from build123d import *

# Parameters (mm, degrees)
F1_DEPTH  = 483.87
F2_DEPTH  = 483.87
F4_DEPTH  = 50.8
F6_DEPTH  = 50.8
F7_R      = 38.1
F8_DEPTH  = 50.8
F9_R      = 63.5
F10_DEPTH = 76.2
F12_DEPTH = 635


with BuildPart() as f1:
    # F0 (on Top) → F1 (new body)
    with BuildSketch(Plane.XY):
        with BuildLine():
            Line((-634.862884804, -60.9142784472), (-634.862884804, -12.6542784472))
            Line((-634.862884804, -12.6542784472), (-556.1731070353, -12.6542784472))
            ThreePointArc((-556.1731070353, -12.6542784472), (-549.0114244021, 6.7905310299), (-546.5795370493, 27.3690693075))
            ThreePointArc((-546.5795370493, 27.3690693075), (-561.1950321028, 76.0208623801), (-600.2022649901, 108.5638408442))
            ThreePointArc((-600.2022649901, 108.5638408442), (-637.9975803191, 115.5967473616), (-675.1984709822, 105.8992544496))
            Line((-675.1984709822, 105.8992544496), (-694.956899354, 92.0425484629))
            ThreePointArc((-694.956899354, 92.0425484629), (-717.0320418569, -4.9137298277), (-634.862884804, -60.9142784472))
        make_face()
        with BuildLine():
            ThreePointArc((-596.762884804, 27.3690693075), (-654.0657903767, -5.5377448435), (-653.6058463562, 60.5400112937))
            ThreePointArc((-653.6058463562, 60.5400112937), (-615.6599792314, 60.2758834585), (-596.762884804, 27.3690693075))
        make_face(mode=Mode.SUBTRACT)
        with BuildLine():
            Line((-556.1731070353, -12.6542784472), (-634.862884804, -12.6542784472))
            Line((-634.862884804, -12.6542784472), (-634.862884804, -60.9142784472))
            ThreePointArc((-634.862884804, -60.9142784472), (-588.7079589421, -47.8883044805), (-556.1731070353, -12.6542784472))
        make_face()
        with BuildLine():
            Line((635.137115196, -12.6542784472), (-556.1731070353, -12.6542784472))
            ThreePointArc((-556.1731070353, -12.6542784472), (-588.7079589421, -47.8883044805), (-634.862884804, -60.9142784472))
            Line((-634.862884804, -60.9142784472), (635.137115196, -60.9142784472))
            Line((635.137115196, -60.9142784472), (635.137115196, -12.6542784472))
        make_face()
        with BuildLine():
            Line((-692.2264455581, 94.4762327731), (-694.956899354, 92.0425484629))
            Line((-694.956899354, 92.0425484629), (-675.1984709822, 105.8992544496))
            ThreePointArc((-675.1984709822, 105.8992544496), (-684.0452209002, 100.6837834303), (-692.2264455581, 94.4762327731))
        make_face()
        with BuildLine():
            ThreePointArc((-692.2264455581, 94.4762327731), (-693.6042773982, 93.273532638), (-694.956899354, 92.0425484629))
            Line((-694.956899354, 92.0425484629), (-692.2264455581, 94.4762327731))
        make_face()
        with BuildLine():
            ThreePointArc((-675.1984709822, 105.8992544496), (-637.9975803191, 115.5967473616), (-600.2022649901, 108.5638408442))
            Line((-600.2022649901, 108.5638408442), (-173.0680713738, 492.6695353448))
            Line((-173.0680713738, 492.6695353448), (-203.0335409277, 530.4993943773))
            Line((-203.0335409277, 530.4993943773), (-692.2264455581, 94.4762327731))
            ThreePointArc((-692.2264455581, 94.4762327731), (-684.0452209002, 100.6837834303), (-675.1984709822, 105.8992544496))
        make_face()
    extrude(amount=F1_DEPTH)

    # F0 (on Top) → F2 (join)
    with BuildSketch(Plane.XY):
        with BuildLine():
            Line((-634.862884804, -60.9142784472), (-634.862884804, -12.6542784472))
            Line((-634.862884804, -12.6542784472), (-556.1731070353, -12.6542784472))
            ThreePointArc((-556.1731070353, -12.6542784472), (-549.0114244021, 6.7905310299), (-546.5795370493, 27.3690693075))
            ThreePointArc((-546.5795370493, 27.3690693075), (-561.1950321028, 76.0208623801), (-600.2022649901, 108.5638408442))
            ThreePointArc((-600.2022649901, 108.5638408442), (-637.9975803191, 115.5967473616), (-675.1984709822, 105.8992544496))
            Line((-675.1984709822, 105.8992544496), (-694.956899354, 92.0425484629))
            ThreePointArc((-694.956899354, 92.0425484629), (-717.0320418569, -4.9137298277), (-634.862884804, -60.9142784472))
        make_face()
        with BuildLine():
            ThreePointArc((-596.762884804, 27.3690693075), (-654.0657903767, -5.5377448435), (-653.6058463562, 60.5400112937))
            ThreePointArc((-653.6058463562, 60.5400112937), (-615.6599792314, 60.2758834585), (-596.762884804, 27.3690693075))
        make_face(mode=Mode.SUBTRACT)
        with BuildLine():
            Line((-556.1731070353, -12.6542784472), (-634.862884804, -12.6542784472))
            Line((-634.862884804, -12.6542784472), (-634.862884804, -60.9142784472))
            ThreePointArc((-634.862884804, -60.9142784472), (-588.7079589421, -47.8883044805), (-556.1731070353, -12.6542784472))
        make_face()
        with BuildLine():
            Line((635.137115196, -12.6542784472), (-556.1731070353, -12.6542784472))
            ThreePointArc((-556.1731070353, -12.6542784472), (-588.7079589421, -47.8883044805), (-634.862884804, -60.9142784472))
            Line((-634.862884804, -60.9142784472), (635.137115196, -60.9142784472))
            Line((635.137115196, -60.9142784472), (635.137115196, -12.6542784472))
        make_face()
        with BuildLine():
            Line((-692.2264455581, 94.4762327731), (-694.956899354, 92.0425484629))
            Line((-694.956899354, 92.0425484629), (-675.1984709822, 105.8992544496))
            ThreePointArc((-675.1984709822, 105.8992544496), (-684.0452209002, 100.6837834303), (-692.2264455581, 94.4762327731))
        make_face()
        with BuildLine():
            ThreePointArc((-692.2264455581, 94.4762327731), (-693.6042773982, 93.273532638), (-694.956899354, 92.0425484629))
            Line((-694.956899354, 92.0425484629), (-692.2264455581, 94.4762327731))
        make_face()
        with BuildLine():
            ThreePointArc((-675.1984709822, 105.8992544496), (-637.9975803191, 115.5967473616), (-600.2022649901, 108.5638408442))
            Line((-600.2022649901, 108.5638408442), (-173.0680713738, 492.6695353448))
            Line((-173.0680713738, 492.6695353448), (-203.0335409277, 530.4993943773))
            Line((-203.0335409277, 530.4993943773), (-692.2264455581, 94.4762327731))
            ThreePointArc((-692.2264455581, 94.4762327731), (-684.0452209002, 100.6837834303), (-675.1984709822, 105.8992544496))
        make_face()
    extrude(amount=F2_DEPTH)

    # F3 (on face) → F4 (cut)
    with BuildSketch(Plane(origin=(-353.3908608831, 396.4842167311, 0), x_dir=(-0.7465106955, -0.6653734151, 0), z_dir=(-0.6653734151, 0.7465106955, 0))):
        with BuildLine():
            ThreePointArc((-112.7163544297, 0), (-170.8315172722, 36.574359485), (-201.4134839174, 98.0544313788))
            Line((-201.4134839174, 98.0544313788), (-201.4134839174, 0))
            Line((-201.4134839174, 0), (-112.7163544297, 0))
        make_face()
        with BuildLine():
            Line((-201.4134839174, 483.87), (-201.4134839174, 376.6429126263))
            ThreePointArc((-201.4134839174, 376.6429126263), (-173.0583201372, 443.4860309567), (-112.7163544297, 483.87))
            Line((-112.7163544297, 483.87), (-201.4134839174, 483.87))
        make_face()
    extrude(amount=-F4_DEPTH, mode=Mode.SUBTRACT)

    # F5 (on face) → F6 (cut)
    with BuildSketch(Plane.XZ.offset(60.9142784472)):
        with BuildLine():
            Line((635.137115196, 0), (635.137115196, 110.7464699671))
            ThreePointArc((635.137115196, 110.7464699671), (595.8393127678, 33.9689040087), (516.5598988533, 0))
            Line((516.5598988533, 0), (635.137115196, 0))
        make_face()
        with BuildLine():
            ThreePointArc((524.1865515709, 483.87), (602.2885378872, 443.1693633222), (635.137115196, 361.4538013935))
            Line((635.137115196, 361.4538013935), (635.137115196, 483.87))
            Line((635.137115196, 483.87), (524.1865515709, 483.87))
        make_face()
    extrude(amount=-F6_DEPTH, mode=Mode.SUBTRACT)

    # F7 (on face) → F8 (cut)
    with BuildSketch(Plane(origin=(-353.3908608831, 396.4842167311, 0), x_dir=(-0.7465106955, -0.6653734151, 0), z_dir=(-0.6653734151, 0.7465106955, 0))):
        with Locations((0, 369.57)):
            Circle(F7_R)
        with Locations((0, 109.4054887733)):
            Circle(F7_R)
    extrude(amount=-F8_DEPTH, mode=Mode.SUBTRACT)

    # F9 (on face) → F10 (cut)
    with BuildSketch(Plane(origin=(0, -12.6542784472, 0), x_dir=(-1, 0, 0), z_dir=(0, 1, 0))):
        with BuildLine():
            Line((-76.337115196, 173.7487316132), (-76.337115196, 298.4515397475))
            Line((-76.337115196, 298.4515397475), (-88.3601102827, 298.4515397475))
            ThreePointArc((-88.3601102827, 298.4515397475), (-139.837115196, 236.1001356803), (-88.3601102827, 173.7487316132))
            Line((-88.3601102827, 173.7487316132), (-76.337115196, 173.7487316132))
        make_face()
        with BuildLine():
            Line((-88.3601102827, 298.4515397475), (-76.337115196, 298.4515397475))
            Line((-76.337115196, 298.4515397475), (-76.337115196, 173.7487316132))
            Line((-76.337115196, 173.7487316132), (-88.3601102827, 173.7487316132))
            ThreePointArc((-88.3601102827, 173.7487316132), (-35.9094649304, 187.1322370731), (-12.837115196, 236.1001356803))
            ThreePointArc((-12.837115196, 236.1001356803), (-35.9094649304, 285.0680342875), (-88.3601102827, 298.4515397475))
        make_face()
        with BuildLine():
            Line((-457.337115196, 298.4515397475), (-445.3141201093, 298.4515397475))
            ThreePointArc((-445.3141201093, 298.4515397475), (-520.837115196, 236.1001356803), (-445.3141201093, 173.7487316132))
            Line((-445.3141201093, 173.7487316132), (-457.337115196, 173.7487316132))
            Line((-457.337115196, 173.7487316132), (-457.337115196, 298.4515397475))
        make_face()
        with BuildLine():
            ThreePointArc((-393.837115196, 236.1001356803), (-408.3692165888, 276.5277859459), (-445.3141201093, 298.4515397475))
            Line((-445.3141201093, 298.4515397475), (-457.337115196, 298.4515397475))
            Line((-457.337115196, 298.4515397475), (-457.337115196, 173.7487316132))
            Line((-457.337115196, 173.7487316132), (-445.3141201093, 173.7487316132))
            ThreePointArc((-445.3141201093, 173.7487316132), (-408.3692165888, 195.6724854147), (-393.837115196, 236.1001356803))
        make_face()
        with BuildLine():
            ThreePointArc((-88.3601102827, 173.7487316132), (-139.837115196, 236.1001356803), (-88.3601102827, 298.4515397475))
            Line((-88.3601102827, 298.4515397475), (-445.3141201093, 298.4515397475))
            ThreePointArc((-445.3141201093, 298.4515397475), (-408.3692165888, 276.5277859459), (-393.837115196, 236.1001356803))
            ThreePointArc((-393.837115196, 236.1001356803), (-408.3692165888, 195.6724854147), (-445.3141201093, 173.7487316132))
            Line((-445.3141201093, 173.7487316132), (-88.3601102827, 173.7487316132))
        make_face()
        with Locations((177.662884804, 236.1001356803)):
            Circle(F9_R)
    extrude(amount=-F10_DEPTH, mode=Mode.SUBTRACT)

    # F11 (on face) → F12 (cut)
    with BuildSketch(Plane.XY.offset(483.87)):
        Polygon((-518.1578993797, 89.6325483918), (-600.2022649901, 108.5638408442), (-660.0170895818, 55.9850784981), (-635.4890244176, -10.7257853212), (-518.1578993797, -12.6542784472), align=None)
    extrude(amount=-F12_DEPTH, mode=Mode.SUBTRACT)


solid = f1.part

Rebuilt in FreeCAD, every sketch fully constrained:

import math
import FreeCAD as App
import Part
import Sketcher
from FreeCAD import Vector
Q = App.Units.Quantity

doc = App.newDocument("Part")
body = doc.addObject("PartDesign::Body", "Body")

# Sketch on XY plane
sketch1 = doc.addObject("Sketcher::SketchObject", "Sketch")
body.addObject(sketch1)
sketch1.AttachmentSupport = (doc.XY_Plane, [""])
sketch1.MapMode = "FlatFace"
sketch1.addGeometry(Part.ArcOfCircle(Part.Circle(Vector(-634.862885, 27.369069, 0), Vector(0, 0, 1), 88.283348), math.radians(132.89796), math.radians(270)), False)
sketch1.addGeometry(Part.LineSegment(Vector(-634.862885, -60.914278, 0), Vector(635.137115, -60.914278, 0)), False)
sketch1.addGeometry(Part.LineSegment(Vector(635.137115, -60.914278, 0), Vector(635.137115, -12.654278, 0)), False)
sketch1.addGeometry(Part.LineSegment(Vector(635.137115, -12.654278, 0), Vector(-556.173107, -12.654278, 0)), False)
sketch1.addGeometry(Part.ArcOfCircle(Part.Circle(Vector(-634.862885, 27.369069, 0), Vector(0, 0, 1), 88.283348), math.radians(-26.958888), math.radians(0)), False)
sketch1.addGeometry(Part.ArcOfCircle(Part.Circle(Vector(-634.862885, 27.369069, 0), Vector(0, 0, 1), 88.283348), math.radians(0), math.radians(66.883216)), False)
sketch1.addGeometry(Part.LineSegment(Vector(-600.202265, 108.563841, 0), Vector(-173.068071, 492.669535, 0)), False)
sketch1.addGeometry(Part.LineSegment(Vector(-173.068071, 492.669535, 0), Vector(-203.033541, 530.499394, 0)), False)
sketch1.addGeometry(Part.LineSegment(Vector(-203.033541, 530.499394, 0), Vector(-692.226446, 94.476233, 0)), False)
sketch1.addGeometry(Part.ArcOfCircle(Part.Circle(Vector(-634.862885, 27.369069, 0), Vector(0, 0, 1), 88.283348), math.radians(130.523998), math.radians(132.89796)), False)
sketch1.addGeometry(Part.Circle(Vector(-634.862885, 27.369069, 0), Vector(0, 0, 1), 38.1), False)
sketch1.addConstraint(Sketcher.Constraint("Tangent", 0, 2, 1, 1))
sketch1.addConstraint(Sketcher.Constraint("Coincident", 1, 2, 2, 1))
sketch1.addConstraint(Sketcher.Constraint("Coincident", 2, 2, 3, 1))
sketch1.addConstraint(Sketcher.Constraint("Coincident", 3, 2, 4, 1))
sketch1.addConstraint(Sketcher.Constraint("Tangent", 4, 2, 5, 1))
sketch1.addConstraint(Sketcher.Constraint("Coincident", 5, 2, 6, 1))
sketch1.addConstraint(Sketcher.Constraint("Coincident", 6, 2, 7, 1))
sketch1.addConstraint(Sketcher.Constraint("Coincident", 7, 2, 8, 1))
sketch1.addConstraint(Sketcher.Constraint("Coincident", 8, 2, 9, 1))
sketch1.addConstraint(Sketcher.Constraint("Tangent", 9, 2, 0, 1))
sketch1.addConstraint(Sketcher.Constraint("Horizontal", 1))
sketch1.addConstraint(Sketcher.Constraint("Vertical", 2))
sketch1.addConstraint(Sketcher.Constraint("Horizontal", 3))
sketch1.addConstraint(Sketcher.Constraint("Coincident", 4, 3, 0, 3))
sketch1.addConstraint(Sketcher.Constraint("Coincident", 10, 3, 0, 3))
sketch1.addConstraint(Sketcher.Constraint("Equal", 0, 4))
sketch1.addConstraint(Sketcher.Constraint("Equal", 4, 5))
sketch1.addConstraint(Sketcher.Constraint("Equal", 5, 9))
sketch1.addConstraint(Sketcher.Constraint("Horizontal", 10, 3, 4, 2))
sketch1.addConstraint(Sketcher.Constraint("Diameter", 10, Q("3 in")))
sketch1.addConstraint(Sketcher.Constraint("DistanceX", 1, 1, 1, 2, Q("50 in")))
sketch1.addConstraint(Sketcher.Constraint("DistanceY", 2, 1, 2, 2, Q("1.9 in")))
sketch1.addConstraint(Sketcher.Constraint("Distance", 7, Q("1.9 in")))
sketch1.addConstraint(Sketcher.Constraint("DistanceY", 0, 2, -1, 1, Q("2.3981999 in")))
sketch1.addConstraint(Sketcher.Constraint("Radius", 0, Q("88.283348 mm")))
sketch1.addConstraint(Sketcher.Constraint("DistanceY", 0, 3, 9, 2, Q("2.5462 in")))
sketch1.addConstraint(Sketcher.Constraint("DistanceX", 9, 2, -1, 1, Q("694.956899 mm")))
sketch1.addConstraint(Sketcher.Constraint("DistanceY", -1, 1, 5, 2, Q("108.563841 mm")))
sketch1.addConstraint(Sketcher.Constraint("DistanceX", 6, 2, -1, 1, Q("173.068071 mm")))
sketch1.addConstraint(Sketcher.Constraint("DistanceX", 7, 2, -1, 1, Q("203.033541 mm")))
sketch1.addConstraint(Sketcher.Constraint("DistanceX", 8, 2, 0, 3, Q("57.363561 mm")))
sketch1.addConstraint(Sketcher.Constraint("Distance", 6, Q("574.439556 mm")))
pad1 = doc.addObject("PartDesign::Pad", "Pad")
body.addObject(pad1)
pad1.Profile = sketch1
pad1.Length = Q("19.05 in")

# Sketch on XY plane
sketch2 = doc.addObject("Sketcher::SketchObject", "Sketch001")
body.addObject(sketch2)
sketch2.AttachmentSupport = (doc.XY_Plane, [""])
sketch2.MapMode = "FlatFace"
sketch2.addGeometry(Part.ArcOfCircle(Part.Circle(Vector(-634.862885, 27.369069, 0), Vector(0, 0, 1), 88.283348), math.radians(132.89796), math.radians(270)), False)
sketch2.addGeometry(Part.LineSegment(Vector(-634.862885, -60.914278, 0), Vector(635.137115, -60.914278, 0)), False)
sketch2.addGeometry(Part.LineSegment(Vector(635.137115, -60.914278, 0), Vector(635.137115, -12.654278, 0)), False)
sketch2.addGeometry(Part.LineSegment(Vector(635.137115, -12.654278, 0), Vector(-556.173107, -12.654278, 0)), False)
sketch2.addGeometry(Part.ArcOfCircle(Part.Circle(Vector(-634.862885, 27.369069, 0), Vector(0, 0, 1), 88.283348), math.radians(-26.958888), math.radians(0)), False)
sketch2.addGeometry(Part.ArcOfCircle(Part.Circle(Vector(-634.862885, 27.369069, 0), Vector(0, 0, 1), 88.283348), math.radians(0), math.radians(66.883216)), False)
sketch2.addGeometry(Part.LineSegment(Vector(-600.202265, 108.563841, 0), Vector(-173.068071, 492.669535, 0)), False)
sketch2.addGeometry(Part.LineSegment(Vector(-173.068071, 492.669535, 0), Vector(-203.033541, 530.499394, 0)), False)
sketch2.addGeometry(Part.LineSegment(Vector(-203.033541, 530.499394, 0), Vector(-692.226446, 94.476233, 0)), False)
sketch2.addGeometry(Part.ArcOfCircle(Part.Circle(Vector(-634.862885, 27.369069, 0), Vector(0, 0, 1), 88.283348), math.radians(130.523998), math.radians(132.89796)), False)
sketch2.addGeometry(Part.Circle(Vector(-634.862885, 27.369069, 0), Vector(0, 0, 1), 38.1), False)
sketch2.addConstraint(Sketcher.Constraint("Tangent", 0, 2, 1, 1))
sketch2.addConstraint(Sketcher.Constraint("Coincident", 1, 2, 2, 1))
sketch2.addConstraint(Sketcher.Constraint("Coincident", 2, 2, 3, 1))
sketch2.addConstraint(Sketcher.Constraint("Coincident", 3, 2, 4, 1))
sketch2.addConstraint(Sketcher.Constraint("Tangent", 4, 2, 5, 1))
sketch2.addConstraint(Sketcher.Constraint("Coincident", 5, 2, 6, 1))
sketch2.addConstraint(Sketcher.Constraint("Coincident", 6, 2, 7, 1))
sketch2.addConstraint(Sketcher.Constraint("Coincident", 7, 2, 8, 1))
sketch2.addConstraint(Sketcher.Constraint("Coincident", 8, 2, 9, 1))
sketch2.addConstraint(Sketcher.Constraint("Tangent", 9, 2, 0, 1))
sketch2.addConstraint(Sketcher.Constraint("Horizontal", 1))
sketch2.addConstraint(Sketcher.Constraint("Vertical", 2))
sketch2.addConstraint(Sketcher.Constraint("Horizontal", 3))
sketch2.addConstraint(Sketcher.Constraint("Coincident", 4, 3, 0, 3))
sketch2.addConstraint(Sketcher.Constraint("Coincident", 10, 3, 0, 3))
sketch2.addConstraint(Sketcher.Constraint("Equal", 0, 4))
sketch2.addConstraint(Sketcher.Constraint("Equal", 4, 5))
sketch2.addConstraint(Sketcher.Constraint("Equal", 5, 9))
sketch2.addConstraint(Sketcher.Constraint("Horizontal", 10, 3, 4, 2))
sketch2.addConstraint(Sketcher.Constraint("Diameter", 10, Q("3 in")))
sketch2.addConstraint(Sketcher.Constraint("DistanceX", 1, 1, 1, 2, Q("50 in")))
sketch2.addConstraint(Sketcher.Constraint("DistanceY", 2, 1, 2, 2, Q("1.9 in")))
sketch2.addConstraint(Sketcher.Constraint("Distance", 7, Q("1.9 in")))
sketch2.addConstraint(Sketcher.Constraint("DistanceY", 0, 2, -1, 1, Q("2.3981999 in")))
sketch2.addConstraint(Sketcher.Constraint("Radius", 0, Q("88.283348 mm")))
sketch2.addConstraint(Sketcher.Constraint("DistanceY", 0, 3, 9, 2, Q("2.5462 in")))
sketch2.addConstraint(Sketcher.Constraint("DistanceX", 9, 2, -1, 1, Q("694.956899 mm")))
sketch2.addConstraint(Sketcher.Constraint("DistanceY", -1, 1, 5, 2, Q("108.563841 mm")))
sketch2.addConstraint(Sketcher.Constraint("DistanceX", 6, 2, -1, 1, Q("173.068071 mm")))
sketch2.addConstraint(Sketcher.Constraint("DistanceX", 7, 2, -1, 1, Q("203.033541 mm")))
sketch2.addConstraint(Sketcher.Constraint("DistanceX", 8, 2, 0, 3, Q("57.363561 mm")))
sketch2.addConstraint(Sketcher.Constraint("Distance", 6, Q("574.439556 mm")))
pad2 = doc.addObject("PartDesign::Pad", "Pad001")
body.addObject(pad2)
pad2.Profile = sketch2
pad2.Length = Q("19.05 in")

# Sketch on an angled plane
sketch3 = doc.addObject("Sketcher::SketchObject", "Sketch002")
body.addObject(sketch3)
sketch3.Placement = App.Placement(Vector(-353.390861, 396.484217, 0), App.Rotation(Vector(-0.746510695, -0.665373415, 0), Vector(0, 0, 0.999999999), Vector(-0.665373415, 0.746510695, 0), "ZXY"))
sketch3.addGeometry(Part.ArcOfCircle(Part.Circle(Vector(-76.647497, 121.770429, 0), Vector(0, 0, 1), 127), math.radians(-169.237396), math.radians(-106.499486)), False)
sketch3.addGeometry(Part.LineSegment(Vector(-201.413484, 98.054431, 0), Vector(-201.413484, 0, 0)), False)
sketch3.addGeometry(Part.LineSegment(Vector(-201.413484, 0, 0), Vector(-112.716354, 0, 0)), False)
sketch3.addGeometry(Part.LineSegment(Vector(-201.413484, 483.869999, 0), Vector(-201.413484, 376.642912, 0)), False)
sketch3.addGeometry(Part.ArcOfCircle(Part.Circle(Vector(-75.19918, 362.537969, 0), Vector(0, 0, 1), 127), math.radians(107.182174), math.radians(173.62343)), False)
sketch3.addGeometry(Part.LineSegment(Vector(-112.716354, 483.869999, 0), Vector(-201.413484, 483.869999, 0)), False)
sketch3.addConstraint(Sketcher.Constraint("Coincident", 0, 1, 1, 1))
sketch3.addConstraint(Sketcher.Constraint("Coincident", 1, 2, 2, 1))
sketch3.addConstraint(Sketcher.Constraint("Coincident", 2, 2, 0, 2))
sketch3.addConstraint(Sketcher.Constraint("Coincident", 3, 2, 4, 2))
sketch3.addConstraint(Sketcher.Constraint("Coincident", 4, 1, 5, 1))
sketch3.addConstraint(Sketcher.Constraint("Coincident", 5, 2, 3, 1))
sketch3.addConstraint(Sketcher.Constraint("Vertical", 1))
sketch3.addConstraint(Sketcher.Constraint("Horizontal", 2))
sketch3.addConstraint(Sketcher.Constraint("Vertical", 3))
sketch3.addConstraint(Sketcher.Constraint("Horizontal", 5))
sketch3.addConstraint(Sketcher.Constraint("Equal", 0, 4))
sketch3.addConstraint(Sketcher.Constraint("PointOnObject", 1, 2, -1))
sketch3.addConstraint(Sketcher.Constraint("Vertical", 1, 2, 3, 2))
sketch3.addConstraint(Sketcher.Constraint("Vertical", 2, 2, 4, 1))
sketch3.addConstraint(Sketcher.Constraint("Radius", 0, Q("5 in")))
sketch3.addConstraint(Sketcher.Constraint("DistanceY", -1, 1, 4, 1, Q("19.05 in")))
sketch3.addConstraint(Sketcher.Constraint("DistanceX", 2, 1, 2, 2, Q("88.697129 mm")))
sketch3.addConstraint(Sketcher.Constraint("DistanceY", 1, 2, 1, 1, Q("98.054431 mm")))
sketch3.addConstraint(Sketcher.Constraint("DistanceY", 3, 2, 3, 1, Q("107.227087 mm")))
sketch3.addConstraint(Sketcher.Constraint("DistanceX", 4, 3, -1, 1, Q("75.19918 mm")))
pocket1 = doc.addObject("PartDesign::Pocket", "Pocket")
body.addObject(pocket1)
pocket1.Profile = sketch3
pocket1.Length = Q("2 in")

# Sketch on XZ plane
sketch4 = doc.addObject("Sketcher::SketchObject", "Sketch003")
body.addObject(sketch4)
sketch4.AttachmentSupport = (doc.XZ_Plane, [""])
sketch4.MapMode = "FlatFace"
sketch4.AttachmentOffset = App.Placement(Vector(0, 0, 2.3981999 * 25.4), App.Rotation())
sketch4.addGeometry(Part.LineSegment(Vector(635.137115, 0, 0), Vector(635.137115, 110.74647, 0)), False)
sketch4.addGeometry(Part.ArcOfCircle(Part.Circle(Vector(509.153776, 126.783869, 0), Vector(0, 0, 1), 127), math.radians(-86.656847), math.radians(-7.254607)), False)
sketch4.addGeometry(Part.LineSegment(Vector(516.559899, 0, 0), Vector(635.137115, 0, 0)), False)
sketch4.addGeometry(Part.ArcOfCircle(Part.Circle(Vector(508.187358, 357.881803, 0), Vector(0, 0, 1), 127), math.radians(1.611712), math.radians(82.762768)), False)
sketch4.addGeometry(Part.LineSegment(Vector(635.137115, 361.453801, 0), Vector(635.137115, 483.87, 0)), False)
sketch4.addGeometry(Part.LineSegment(Vector(635.137115, 483.87, 0), Vector(524.186552, 483.87, 0)), False)
sketch4.addConstraint(Sketcher.Constraint("Coincident", 0, 2, 1, 2))
sketch4.addConstraint(Sketcher.Constraint("Coincident", 1, 1, 2, 1))
sketch4.addConstraint(Sketcher.Constraint("Coincident", 2, 2, 0, 1))
sketch4.addConstraint(Sketcher.Constraint("Coincident", 3, 1, 4, 1))
sketch4.addConstraint(Sketcher.Constraint("Coincident", 4, 2, 5, 1))
sketch4.addConstraint(Sketcher.Constraint("Coincident", 5, 2, 3, 2))
sketch4.addConstraint(Sketcher.Constraint("Vertical", 0))
sketch4.addConstraint(Sketcher.Constraint("Horizontal", 2))
sketch4.addConstraint(Sketcher.Constraint("Vertical", 4))
sketch4.addConstraint(Sketcher.Constraint("Horizontal", 5))
sketch4.addConstraint(Sketcher.Constraint("Equal", 1, 3))
sketch4.addConstraint(Sketcher.Constraint("PointOnObject", 1, 1, -1))
sketch4.addConstraint(Sketcher.Constraint("Vertical", 2, 2, 3, 1))
sketch4.addConstraint(Sketcher.Constraint("Radius", 1, Q("5 in")))
sketch4.addConstraint(Sketcher.Constraint("DistanceY", -1, 1, 4, 2, Q("19.05 in")))
sketch4.addConstraint(Sketcher.Constraint("DistanceY", 4, 1, 4, 2, Q("122.416199 mm")))
sketch4.addConstraint(Sketcher.Constraint("DistanceY", 0, 1, 0, 2, Q("110.74647 mm")))
sketch4.addConstraint(Sketcher.Constraint("DistanceX", -1, 1, 1, 1, Q("516.559899 mm")))
sketch4.addConstraint(Sketcher.Constraint("DistanceY", 0, 2, 1, 3, Q("16.037399 mm")))
sketch4.addConstraint(Sketcher.Constraint("DistanceX", 5, 2, 5, 1, Q("110.950564 mm")))
pocket2 = doc.addObject("PartDesign::Pocket", "Pocket001")
body.addObject(pocket2)
pocket2.Profile = sketch4
pocket2.Length = Q("2 in")

# Sketch on an angled plane
sketch5 = doc.addObject("Sketcher::SketchObject", "Sketch004")
body.addObject(sketch5)
sketch5.Placement = App.Placement(Vector(-353.390861, 396.484217, 0), App.Rotation(Vector(-0.746510695, -0.665373415, 0), Vector(0, 0, 0.999999999), Vector(-0.665373415, 0.746510695, 0), "ZXY"))
sketch5.addGeometry(Part.Circle(Vector(0, 369.569999, 0), Vector(0, 0, 1), 38.1), False)
sketch5.addGeometry(Part.Circle(Vector(0, 109.405489, 0), Vector(0, 0, 1), 38.1), False)
sketch5.addConstraint(Sketcher.Constraint("Equal", 0, 1))
sketch5.addConstraint(Sketcher.Constraint("PointOnObject", 0, 3, -2))
sketch5.addConstraint(Sketcher.Constraint("PointOnObject", 1, 3, -2))
sketch5.addConstraint(Sketcher.Constraint("Diameter", 0, Q("3 in")))
sketch5.addConstraint(Sketcher.Constraint("DistanceY", -1, 1, 0, 3, Q("14.55 in")))
sketch5.addConstraint(Sketcher.Constraint("DistanceY", -1, 1, 1, 3, Q("109.405489 mm")))
pocket3 = doc.addObject("PartDesign::Pocket", "Pocket002")
body.addObject(pocket3)
pocket3.Profile = sketch5
pocket3.Length = Q("2 in")

# Sketch on XZ plane
sketch6 = doc.addObject("Sketcher::SketchObject", "Sketch005")
body.addObject(sketch6)
sketch6.AttachmentSupport = (doc.XZ_Plane, [""])
sketch6.MapMode = "FlatFace"
sketch6.AttachmentOffset = App.Placement(Vector(0, 0, 0.4981999 * 25.4), App.Rotation())
sketch6.addGeometry(Part.ArcOfCircle(Part.Circle(Vector(76.337115, 236.100136, 0), Vector(0, 0, 1), 63.5), math.radians(180), math.radians(280.914183)), False)
sketch6.addGeometry(Part.ArcOfCircle(Part.Circle(Vector(76.337115, 236.100136, 0), Vector(0, 0, 1), 63.5), math.radians(79.085817), math.radians(180)), False)
sketch6.addGeometry(Part.LineSegment(Vector(88.36011, 298.45154, 0), Vector(445.31412, 298.45154, 0)), False)
sketch6.addGeometry(Part.ArcOfCircle(Part.Circle(Vector(457.337115, 236.100136, 0), Vector(0, 0, 1), 63.5), math.radians(-100.914183), math.radians(100.914183)), False)
sketch6.addGeometry(Part.LineSegment(Vector(445.31412, 173.748732, 0), Vector(88.36011, 173.748732, 0)), False)
sketch6.addGeometry(Part.Circle(Vector(-177.662885, 236.100136, 0), Vector(0, 0, 1), 63.5), False)
sketch6.addConstraint(Sketcher.Constraint("Tangent", 0, 1, 1, 2))
sketch6.addConstraint(Sketcher.Constraint("Coincident", 1, 1, 2, 1))
sketch6.addConstraint(Sketcher.Constraint("Coincident", 2, 2, 3, 2))
sketch6.addConstraint(Sketcher.Constraint("Coincident", 3, 1, 4, 1))
sketch6.addConstraint(Sketcher.Constraint("Coincident", 4, 2, 0, 2))
sketch6.addConstraint(Sketcher.Constraint("Horizontal", 2))
sketch6.addConstraint(Sketcher.Constraint("Horizontal", 4))
sketch6.addConstraint(Sketcher.Constraint("Equal", 0, 1))
sketch6.addConstraint(Sketcher.Constraint("Equal", 1, 3))
sketch6.addConstraint(Sketcher.Constraint("Equal", 3, 5))
sketch6.addConstraint(Sketcher.Constraint("Horizontal", 1, 3, 3, 3))
sketch6.addConstraint(Sketcher.Constraint("Horizontal", 3, 3, 5, 3))
sketch6.addConstraint(Sketcher.Constraint("Horizontal", 5, 3, 0, 1))
sketch6.addConstraint(Sketcher.Constraint("Vertical", 2, 2, 3, 1))
sketch6.addConstraint(Sketcher.Constraint("Diameter", 5, Q("5 in")))
sketch6.addConstraint(Sketcher.Constraint("DistanceX", 0, 3, 3, 3, Q("15 in")))
sketch6.addConstraint(Sketcher.Constraint("DistanceX", 5, 3, 0, 3, Q("10 in")))
sketch6.addConstraint(Sketcher.Constraint("DistanceX", 2, 1, 2, 2, Q("356.95401 mm")))
sketch6.addConstraint(Sketcher.Constraint("DistanceX", -1, 1, 1, 1, Q("88.36011 mm")))
sketch6.addConstraint(Sketcher.Constraint("DistanceY", -1, 1, 1, 1, Q("298.45154 mm")))
pocket4 = doc.addObject("PartDesign::Pocket", "Pocket003")
body.addObject(pocket4)
pocket4.Profile = sketch6
pocket4.Length = Q("3 in")
pocket4.Reversed = True

# Sketch on XY plane
sketch7 = doc.addObject("Sketcher::SketchObject", "Sketch006")
body.addObject(sketch7)
sketch7.AttachmentSupport = (doc.XY_Plane, [""])
sketch7.MapMode = "FlatFace"
sketch7.AttachmentOffset = App.Placement(Vector(0, 0, 19.05 * 25.4), App.Rotation())
sketch7.addGeometry(Part.LineSegment(Vector(-518.157899, 89.632548, 0), Vector(-600.202265, 108.563841, 0)), False)
sketch7.addGeometry(Part.LineSegment(Vector(-600.202265, 108.563841, 0), Vector(-660.01709, 55.985078, 0)), False)
sketch7.addGeometry(Part.LineSegment(Vector(-660.01709, 55.985078, 0), Vector(-635.489024, -10.725785, 0)), False)
sketch7.addGeometry(Part.LineSegment(Vector(-635.489024, -10.725785, 0), Vector(-518.157899, -12.654278, 0)), False)
sketch7.addGeometry(Part.LineSegment(Vector(-518.157899, -12.654278, 0), Vector(-518.157899, 89.632548, 0)), False)
sketch7.addConstraint(Sketcher.Constraint("Coincident", 0, 2, 1, 1))
sketch7.addConstraint(Sketcher.Constraint("Coincident", 1, 2, 2, 1))
sketch7.addConstraint(Sketcher.Constraint("Coincident", 2, 2, 3, 1))
sketch7.addConstraint(Sketcher.Constraint("Coincident", 3, 2, 4, 1))
sketch7.addConstraint(Sketcher.Constraint("Coincident", 4, 2, 0, 1))
sketch7.addConstraint(Sketcher.Constraint("Vertical", 4))
sketch7.addConstraint(Sketcher.Constraint("DistanceY", 3, 2, -1, 1, Q("0.4981999 in")))
sketch7.addConstraint(Sketcher.Constraint("DistanceX", 3, 2, -1, 1, Q("518.157899 mm")))
sketch7.addConstraint(Sketcher.Constraint("Distance", 0, Q("84.200189 mm")))
sketch7.addConstraint(Sketcher.Constraint("Distance", 2, Q("71.077179 mm")))
sketch7.addConstraint(Sketcher.Constraint("DistanceY", 4, 1, 4, 2, Q("102.286827 mm")))
sketch7.addConstraint(Sketcher.Constraint("DistanceY", -1, 1, 0, 2, Q("108.563841 mm")))
sketch7.addConstraint(Sketcher.Constraint("DistanceX", 1, 2, -1, 1, Q("660.01709 mm")))
sketch7.addConstraint(Sketcher.Constraint("DistanceY", -1, 1, 1, 2, Q("55.985078 mm")))
sketch7.addConstraint(Sketcher.Constraint("DistanceX", 2, 2, 0, 2, Q("35.286759 mm")))
pocket5 = doc.addObject("PartDesign::Pocket", "Pocket004")
body.addObject(pocket5)
pocket5.Profile = sketch7
pocket5.Length = Q("25 in")

doc.recompute()
